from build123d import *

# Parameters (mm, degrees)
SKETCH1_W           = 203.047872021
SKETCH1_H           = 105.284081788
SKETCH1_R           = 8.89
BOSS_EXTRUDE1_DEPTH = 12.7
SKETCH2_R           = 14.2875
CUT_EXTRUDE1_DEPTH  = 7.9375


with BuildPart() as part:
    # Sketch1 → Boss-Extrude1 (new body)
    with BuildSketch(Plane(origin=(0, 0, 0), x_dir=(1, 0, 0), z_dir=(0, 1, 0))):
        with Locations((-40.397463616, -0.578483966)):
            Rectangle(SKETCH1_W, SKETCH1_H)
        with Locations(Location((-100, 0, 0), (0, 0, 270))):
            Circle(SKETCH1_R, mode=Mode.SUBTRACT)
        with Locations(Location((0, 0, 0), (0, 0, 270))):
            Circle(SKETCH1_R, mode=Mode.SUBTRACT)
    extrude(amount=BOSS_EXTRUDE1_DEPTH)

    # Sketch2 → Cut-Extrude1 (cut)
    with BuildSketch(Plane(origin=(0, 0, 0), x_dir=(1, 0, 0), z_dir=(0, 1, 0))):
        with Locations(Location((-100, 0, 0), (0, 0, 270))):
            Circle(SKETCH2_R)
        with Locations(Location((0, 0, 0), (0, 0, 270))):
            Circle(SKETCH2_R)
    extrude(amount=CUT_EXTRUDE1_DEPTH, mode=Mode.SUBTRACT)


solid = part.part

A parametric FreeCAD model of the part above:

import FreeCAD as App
import Part
import Sketcher
from FreeCAD import Vector
Q = App.Units.Quantity


def add_polygon(sketch, points):
    """Adds a closed chain of lines whose ends are joined by coincident constraints."""
    first, n = sketch.GeometryCount, len(points)
    for a, b in zip(points, points[1:] + points[:1]):
        sketch.addGeometry(Part.LineSegment(App.Vector(*a, 0), App.Vector(*b, 0)), False)
    for i in range(n):
        sketch.addConstraint(Sketcher.Constraint("Coincident", first + i, 2, first + (i + 1) % n, 1))

doc = App.newDocument("Part")
body = doc.addObject("PartDesign::Body", "Body")

sketch1 = body.newObject("Sketcher::SketchObject", "Sketch")
sketch1.AttachmentSupport = (doc.getObject("XZ_Plane"), [""])
sketch1.MapMode = "FlatFace"
add_polygon(sketch1, [(-142, -52), (-142, 53), (61, 53), (61, -52)])
sketch1.addGeometry(Part.Circle(Vector(-100, 0, 0), Vector(0, 0, 1), 9), False)
sketch1.addGeometry(Part.Circle(Vector(0, 0, 0), Vector(0, 0, 1), 9), False)
sketch1.addConstraint([
    Sketcher.Constraint("Vertical", 0),
    Sketcher.Constraint("Horizontal", 1),
    Sketcher.Constraint("Vertical", 2),
    Sketcher.Constraint("Horizontal", 3),
    Sketcher.Constraint("Coincident", 5, 3, -1, 1),
    Sketcher.Constraint("Equal", 4, 5),
    Sketcher.Constraint("PointOnObject", 4, 3, -1),
    Sketcher.Constraint("Diameter", 4, Q("0.7 in")),
    Sketcher.Constraint("DistanceY", 0, 1, 0, 2, 105.284082),
    Sketcher.Constraint("DistanceX", 4, 3, -1, 1, 100.0),
    Sketcher.Constraint("DistanceX", 0, 2, -1, 1, 141.9214),
    Sketcher.Constraint("DistanceX", 1, 1, 1, 2, 203.047872),
    Sketcher.Constraint("DistanceY", -1, 1, 0, 2, 53.220525),
])
pad1 = body.newObject("PartDesign::Pad", "Pad")
pad1.Profile = sketch1
pad1.Length = Q("0.5 in")
pad1.Reversed = True

sketch2 = body.newObject("Sketcher::SketchObject", "Sketch001")
sketch2.AttachmentSupport = (doc.getObject("XZ_Plane"), [""])
sketch2.MapMode = "FlatFace"
sketch2.addGeometry([
    Part.Circle(Vector(-100, 0, 0), Vector(0, 0, 1), 14),
    Part.Circle(Vector(0, 0, 0), Vector(0, 0, 1), 14),
], False)
sketch2.addConstraint([
    Sketcher.Constraint("Coincident", 1, 3, -1, 1),
    Sketcher.Constraint("Equal", 0, 1),
    Sketcher.Constraint("PointOnObject", 0, 3, -1),
    Sketcher.Constraint("Diameter", 0, Q("1.125 in")),
    Sketcher.Constraint("DistanceX", 0, 3, -1, 1, 100.0),
])
pocket1 = body.newObject("PartDesign::Pocket", "Pocket")
pocket1.Profile = sketch2
pocket1.Length = Q("0.3125 in")

doc.recompute()
